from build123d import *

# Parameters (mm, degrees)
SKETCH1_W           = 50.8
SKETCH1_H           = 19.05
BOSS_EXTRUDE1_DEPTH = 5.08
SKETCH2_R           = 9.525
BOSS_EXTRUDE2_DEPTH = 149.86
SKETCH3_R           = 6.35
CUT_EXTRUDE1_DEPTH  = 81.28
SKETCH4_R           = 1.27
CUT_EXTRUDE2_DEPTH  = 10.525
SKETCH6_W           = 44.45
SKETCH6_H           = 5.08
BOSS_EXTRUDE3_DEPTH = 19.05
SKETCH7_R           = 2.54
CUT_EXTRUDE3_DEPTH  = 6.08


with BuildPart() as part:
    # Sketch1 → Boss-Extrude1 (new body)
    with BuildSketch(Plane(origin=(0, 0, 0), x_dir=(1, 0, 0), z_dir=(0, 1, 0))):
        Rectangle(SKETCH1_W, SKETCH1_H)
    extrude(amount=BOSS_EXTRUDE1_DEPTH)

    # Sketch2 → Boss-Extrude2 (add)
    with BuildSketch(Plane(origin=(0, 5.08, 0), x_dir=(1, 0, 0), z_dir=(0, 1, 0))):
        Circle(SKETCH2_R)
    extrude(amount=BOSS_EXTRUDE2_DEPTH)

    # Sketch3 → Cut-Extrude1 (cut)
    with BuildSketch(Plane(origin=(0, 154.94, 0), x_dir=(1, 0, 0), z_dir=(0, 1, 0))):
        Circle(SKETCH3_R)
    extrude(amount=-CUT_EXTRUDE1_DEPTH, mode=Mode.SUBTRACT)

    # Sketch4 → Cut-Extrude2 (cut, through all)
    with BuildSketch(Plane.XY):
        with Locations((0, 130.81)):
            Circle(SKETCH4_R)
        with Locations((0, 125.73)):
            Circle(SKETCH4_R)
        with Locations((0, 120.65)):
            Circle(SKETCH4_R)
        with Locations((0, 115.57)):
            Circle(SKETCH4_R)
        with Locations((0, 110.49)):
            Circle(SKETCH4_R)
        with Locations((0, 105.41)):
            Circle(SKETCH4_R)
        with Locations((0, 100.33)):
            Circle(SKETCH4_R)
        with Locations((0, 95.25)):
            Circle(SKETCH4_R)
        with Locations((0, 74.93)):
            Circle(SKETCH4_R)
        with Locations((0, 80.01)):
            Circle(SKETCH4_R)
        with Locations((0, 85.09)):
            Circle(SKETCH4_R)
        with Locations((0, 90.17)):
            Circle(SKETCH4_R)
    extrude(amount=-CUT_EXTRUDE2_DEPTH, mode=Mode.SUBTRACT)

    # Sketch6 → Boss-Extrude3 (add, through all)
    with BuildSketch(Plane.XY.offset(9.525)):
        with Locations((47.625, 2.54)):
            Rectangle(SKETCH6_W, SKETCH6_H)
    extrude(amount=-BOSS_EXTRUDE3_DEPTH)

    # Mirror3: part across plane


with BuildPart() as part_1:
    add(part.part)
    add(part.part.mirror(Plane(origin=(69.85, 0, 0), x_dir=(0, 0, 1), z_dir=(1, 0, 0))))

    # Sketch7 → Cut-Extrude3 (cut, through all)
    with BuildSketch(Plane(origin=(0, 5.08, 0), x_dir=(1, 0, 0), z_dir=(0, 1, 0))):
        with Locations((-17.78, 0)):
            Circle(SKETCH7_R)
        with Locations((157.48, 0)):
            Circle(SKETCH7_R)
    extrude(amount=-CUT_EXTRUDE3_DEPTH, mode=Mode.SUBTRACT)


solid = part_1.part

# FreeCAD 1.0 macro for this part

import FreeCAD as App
import Part
import Sketcher
Q = App.Units.Quantity


def add_polygon(sketch, points):
    """Adds a closed chain of lines whose ends are joined by coincident constraints."""
    first, n = sketch.GeometryCount, len(points)
    for a, b in zip(points, points[1:] + points[:1]):
        sketch.addGeometry(Part.LineSegment(App.Vector(*a, 0), App.Vector(*b, 0)), False)
    for i in range(n):
        sketch.addConstraint(Sketcher.Constraint("Coincident", first + i, 2, first + (i + 1) % n, 1))

doc = App.newDocument("Part")
body = doc.addObject("PartDesign::Body", "Body")

# Sketch on XZ plane
sketch1 = doc.addObject("Sketcher::SketchObject", "Sketch")
body.addObject(sketch1)
sketch1.AttachmentSupport = (doc.XZ_Plane, [""])
sketch1.MapMode = "FlatFace"
add_polygon(sketch1, [(-25.4, -9.525), (-25.4, 9.525), (25.4, 9.525), (25.4, -9.525)])  # lines 0-3
sketch1.addConstraint([
    Sketcher.Constraint("Vertical", 0),
    Sketcher.Constraint("Horizontal", 1),
    Sketcher.Constraint("Vertical", 2),
    Sketcher.Constraint("Horizontal", 3),
    Sketcher.Constraint("Symmetric", 0, 2, 2, 2, -1, 1),
    Sketcher.Constraint("DistanceX", 1, 1, 1, 2, Q("2 in")),
    Sketcher.Constraint("DistanceY", 0, 1, 0, 2, Q("0.75 in")),
])
pad1 = doc.addObject("PartDesign::Pad", "Pad")
body.addObject(pad1)
pad1.Profile = sketch1
pad1.Length = Q("0.2 in")
pad1.Reversed = True

# Sketch on XZ plane
sketch2 = doc.addObject("Sketcher::SketchObject", "Sketch001")
body.addObject(sketch2)
sketch2.AttachmentSupport = (doc.XZ_Plane, [""])
sketch2.MapMode = "FlatFace"
sketch2.AttachmentOffset = App.Placement(App.Vector(0, 0, -0.2 * 25.4), App.Rotation())
sketch2.addGeometry(Part.Circle(App.Vector(0, 0, 0), App.Vector(0, 0, 1), 9.525), False)
sketch2.addConstraint([
    Sketcher.Constraint("Coincident", 0, 3, -1, 1),
    Sketcher.Constraint("Diameter", 0, Q("0.75 in")),
])
pad2 = doc.addObject("PartDesign::Pad", "Pad001")
body.addObject(pad2)
pad2.Profile = sketch2
pad2.Length = Q("5.9 in")
pad2.Reversed = True

# Sketch on XZ plane
sketch3 = doc.addObject("Sketcher::SketchObject", "Sketch002")
body.addObject(sketch3)
sketch3.AttachmentSupport = (doc.XZ_Plane, [""])
sketch3.MapMode = "FlatFace"
sketch3.AttachmentOffset = App.Placement(App.Vector(0, 0, -6.1 * 25.4), App.Rotation())
sketch3.addGeometry(Part.Circle(App.Vector(0, 0, 0), App.Vector(0, 0, 1), 6.35), False)
sketch3.addConstraint([
    Sketcher.Constraint("Coincident", 0, 3, -1, 1),
    Sketcher.Constraint("Diameter", 0, Q("0.5 in")),
])
pocket1 = doc.addObject("PartDesign::Pocket", "Pocket")
body.addObject(pocket1)
pocket1.Profile = sketch3
pocket1.Length = Q("3.2 in")
pocket1.Reversed = True

# Sketch on XY plane
sketch4 = doc.addObject("Sketcher::SketchObject", "Sketch003")
body.addObject(sketch4)
sketch4.AttachmentSupport = (doc.XY_Plane, [""])
sketch4.MapMode = "FlatFace"
sketch4.addGeometry([
    Part.Circle(App.Vector(0, 130.81, 0), App.Vector(0, 0, 1), 1.27),  # 0
    Part.Circle(App.Vector(0, 125.73, 0), App.Vector(0, 0, 1), 1.27),  # 1
    Part.Circle(App.Vector(0, 120.65, 0), App.Vector(0, 0, 1), 1.27),  # 2
    Part.Circle(App.Vector(0, 115.57, 0), App.Vector(0, 0, 1), 1.27),  # 3
    Part.Circle(App.Vector(0, 110.49, 0), App.Vector(0, 0, 1), 1.27),  # 4
    Part.Circle(App.Vector(0, 105.41, 0), App.Vector(0, 0, 1), 1.27),  # 5
    Part.Circle(App.Vector(0, 100.33, 0), App.Vector(0, 0, 1), 1.27),  # 6
    Part.Circle(App.Vector(0, 95.25, 0), App.Vector(0, 0, 1), 1.27),  # 7
    Part.Circle(App.Vector(0, 74.93, 0), App.Vector(0, 0, 1), 1.27),  # 8
    Part.Circle(App.Vector(0, 80.01, 0), App.Vector(0, 0, 1), 1.27),  # 9
    Part.Circle(App.Vector(0, 85.09, 0), App.Vector(0, 0, 1), 1.27),  # 10
    Part.Circle(App.Vector(0, 90.17, 0), App.Vector(0, 0, 1), 1.27),  # 11
], False)
sketch4.addConstraint([
    Sketcher.Constraint("Equal", 0, 1),
    Sketcher.Constraint("Equal", 1, 2),
    Sketcher.Constraint("Equal", 2, 3),
    Sketcher.Constraint("Equal", 3, 4),
    Sketcher.Constraint("Equal", 4, 5),
    Sketcher.Constraint("Equal", 5, 6),
    Sketcher.Constraint("Equal", 6, 7),
    Sketcher.Constraint("Equal", 7, 8),
    Sketcher.Constraint("Equal", 8, 9),
    Sketcher.Constraint("Equal", 9, 10),
    Sketcher.Constraint("Equal", 10, 11),
    Sketcher.Constraint("PointOnObject", 0, 3, -2),
    Sketcher.Constraint("PointOnObject", 1, 3, -2),
    Sketcher.Constraint("PointOnObject", 2, 3, -2),
    Sketcher.Constraint("PointOnObject", 3, 3, -2),
    Sketcher.Constraint("PointOnObject", 4, 3, -2),
    Sketcher.Constraint("PointOnObject", 5, 3, -2),
    Sketcher.Constraint("PointOnObject", 6, 3, -2),
    Sketcher.Constraint("PointOnObject", 7, 3, -2),
    Sketcher.Constraint("PointOnObject", 8, 3, -2),
    Sketcher.Constraint("PointOnObject", 9, 3, -2),
    Sketcher.Constraint("PointOnObject", 10, 3, -2),
    Sketcher.Constraint("PointOnObject", 11, 3, -2),
    Sketcher.Constraint("Diameter", 0, Q("0.1 in")),
    Sketcher.Constraint("DistanceY", 5, 3, 0, 3, Q("1 in")),
    Sketcher.Constraint("DistanceY", 6, 3, 1, 3, Q("1 in")),
    Sketcher.Constraint("DistanceY", 7, 3, 2, 3, Q("1 in")),
    Sketcher.Constraint("DistanceY", 8, 3, 6, 3, Q("1 in")),
    Sketcher.Constraint("DistanceY", 9, 3, 5, 3, Q("1 in")),
    Sketcher.Constraint("DistanceY", 1, 3, 0, 3, Q("0.2 in")),
    Sketcher.Constraint("DistanceY", 2, 3, 1, 3, Q("0.2 in")),
    Sketcher.Constraint("DistanceY", 3, 3, 2, 3, Q("0.2 in")),
    Sketcher.Constraint("DistanceY", 4, 3, 3, 3, Q("0.2 in")),
    Sketcher.Constraint("DistanceY", 9, 3, 10, 3, Q("0.2 in")),
    Sketcher.Constraint("DistanceY", 11, 3, 7, 3, Q("0.2 in")),
    Sketcher.Constraint("DistanceY", -1, 1, 0, 3, Q("5.15 in")),
])
pocket2 = doc.addObject("PartDesign::Pocket", "Pocket001")
body.addObject(pocket2)
pocket2.Profile = sketch4
pocket2.Type = "ThroughAll"

# Sketch on XY plane
sketch5 = doc.addObject("Sketcher::SketchObject", "Sketch004")
body.addObject(sketch5)
sketch5.AttachmentSupport = (doc.XY_Plane, [""])
sketch5.MapMode = "FlatFace"
sketch5.AttachmentOffset = App.Placement(App.Vector(0, 0, 0.375 * 25.4), App.Rotation())
add_polygon(sketch5, [(25.4, 5.08), (25.4, 0), (69.85, 0), (69.85, 5.08)])  # lines 0-3
sketch5.addConstraint([
    Sketcher.Constraint("Vertical", 0),
    Sketcher.Constraint("Horizontal", 1),
    Sketcher.Constraint("Vertical", 2),
    Sketcher.Constraint("Horizontal", 3),
    Sketcher.Constraint("PointOnObject", 0, 2, -1),
    Sketcher.Constraint("DistanceY", 0, 2, 0, 1, Q("0.2 in")),
    Sketcher.Constraint("DistanceX", -1, 1, 0, 2, Q("1 in")),
    Sketcher.Constraint("DistanceX", 1, 1, 1, 2, Q("1.75 in")),
])
pad3 = doc.addObject("PartDesign::Pad", "Pad002")
body.addObject(pad3)
pad3.Profile = sketch5
pad3.Length = Q("0.75 in")
pad3.Reversed = True
body2 = doc.addObject("PartDesign::Body", "Body001")
doc.recompute()

body2.BaseFeature = body
doc.recompute()

mirroring = doc.addObject("Part::Mirroring", "Mirroring")
mirroring.Source = body
mirroring.Base = App.Vector(69.85, 0, 0)
mirroring.Normal = App.Vector(1, 0, 0)
body3 = doc.addObject("PartDesign::Body", "Body002")
body3.BaseFeature = mirroring
boolean = doc.addObject("PartDesign::Boolean", "Boolean")
body2.addObject(boolean)
boolean.Type = "Fuse"
boolean.addObjects([body3])
doc.recompute()

# Sketch on XZ plane
sketch6 = doc.addObject("Sketcher::SketchObject", "Sketch005")
body2.addObject(sketch6)
sketch6.AttachmentSupport = (doc.getObject("XZ_Plane001"), [""])
sketch6.MapMode = "FlatFace"
sketch6.AttachmentOffset = App.Placement(App.Vector(0, 0, -0.2 * 25.4), App.Rotation())
sketch6.addGeometry([
    Part.Circle(App.Vector(-17.78, 0, 0), App.Vector(0, 0, 1), 2.54),
    Part.Circle(App.Vector(157.48, 0, 0), App.Vector(0, 0, 1), 2.54),
], False)
sketch6.addConstraint([
    Sketcher.Constraint("Equal", 0, 1),
    Sketcher.Constraint("PointOnObject", 0, 3, -1),
    Sketcher.Constraint("PointOnObject", 1, 3, -1),
    Sketcher.Constraint("Diameter", 0, Q("0.2 in")),
    Sketcher.Constraint("DistanceX", 0, 3, -1, 1, Q("0.7 in")),
    Sketcher.Constraint("DistanceX", -1, 1, 1, 3, Q("6.2 in")),
])
pocket3 = doc.addObject("PartDesign::Pocket", "Pocket002")
body2.addObject(pocket3)
pocket3.Profile = sketch6
pocket3.Type = "ThroughAll"
pocket3.Reversed = True
mirroring.Visibility = False

doc.recompute()
